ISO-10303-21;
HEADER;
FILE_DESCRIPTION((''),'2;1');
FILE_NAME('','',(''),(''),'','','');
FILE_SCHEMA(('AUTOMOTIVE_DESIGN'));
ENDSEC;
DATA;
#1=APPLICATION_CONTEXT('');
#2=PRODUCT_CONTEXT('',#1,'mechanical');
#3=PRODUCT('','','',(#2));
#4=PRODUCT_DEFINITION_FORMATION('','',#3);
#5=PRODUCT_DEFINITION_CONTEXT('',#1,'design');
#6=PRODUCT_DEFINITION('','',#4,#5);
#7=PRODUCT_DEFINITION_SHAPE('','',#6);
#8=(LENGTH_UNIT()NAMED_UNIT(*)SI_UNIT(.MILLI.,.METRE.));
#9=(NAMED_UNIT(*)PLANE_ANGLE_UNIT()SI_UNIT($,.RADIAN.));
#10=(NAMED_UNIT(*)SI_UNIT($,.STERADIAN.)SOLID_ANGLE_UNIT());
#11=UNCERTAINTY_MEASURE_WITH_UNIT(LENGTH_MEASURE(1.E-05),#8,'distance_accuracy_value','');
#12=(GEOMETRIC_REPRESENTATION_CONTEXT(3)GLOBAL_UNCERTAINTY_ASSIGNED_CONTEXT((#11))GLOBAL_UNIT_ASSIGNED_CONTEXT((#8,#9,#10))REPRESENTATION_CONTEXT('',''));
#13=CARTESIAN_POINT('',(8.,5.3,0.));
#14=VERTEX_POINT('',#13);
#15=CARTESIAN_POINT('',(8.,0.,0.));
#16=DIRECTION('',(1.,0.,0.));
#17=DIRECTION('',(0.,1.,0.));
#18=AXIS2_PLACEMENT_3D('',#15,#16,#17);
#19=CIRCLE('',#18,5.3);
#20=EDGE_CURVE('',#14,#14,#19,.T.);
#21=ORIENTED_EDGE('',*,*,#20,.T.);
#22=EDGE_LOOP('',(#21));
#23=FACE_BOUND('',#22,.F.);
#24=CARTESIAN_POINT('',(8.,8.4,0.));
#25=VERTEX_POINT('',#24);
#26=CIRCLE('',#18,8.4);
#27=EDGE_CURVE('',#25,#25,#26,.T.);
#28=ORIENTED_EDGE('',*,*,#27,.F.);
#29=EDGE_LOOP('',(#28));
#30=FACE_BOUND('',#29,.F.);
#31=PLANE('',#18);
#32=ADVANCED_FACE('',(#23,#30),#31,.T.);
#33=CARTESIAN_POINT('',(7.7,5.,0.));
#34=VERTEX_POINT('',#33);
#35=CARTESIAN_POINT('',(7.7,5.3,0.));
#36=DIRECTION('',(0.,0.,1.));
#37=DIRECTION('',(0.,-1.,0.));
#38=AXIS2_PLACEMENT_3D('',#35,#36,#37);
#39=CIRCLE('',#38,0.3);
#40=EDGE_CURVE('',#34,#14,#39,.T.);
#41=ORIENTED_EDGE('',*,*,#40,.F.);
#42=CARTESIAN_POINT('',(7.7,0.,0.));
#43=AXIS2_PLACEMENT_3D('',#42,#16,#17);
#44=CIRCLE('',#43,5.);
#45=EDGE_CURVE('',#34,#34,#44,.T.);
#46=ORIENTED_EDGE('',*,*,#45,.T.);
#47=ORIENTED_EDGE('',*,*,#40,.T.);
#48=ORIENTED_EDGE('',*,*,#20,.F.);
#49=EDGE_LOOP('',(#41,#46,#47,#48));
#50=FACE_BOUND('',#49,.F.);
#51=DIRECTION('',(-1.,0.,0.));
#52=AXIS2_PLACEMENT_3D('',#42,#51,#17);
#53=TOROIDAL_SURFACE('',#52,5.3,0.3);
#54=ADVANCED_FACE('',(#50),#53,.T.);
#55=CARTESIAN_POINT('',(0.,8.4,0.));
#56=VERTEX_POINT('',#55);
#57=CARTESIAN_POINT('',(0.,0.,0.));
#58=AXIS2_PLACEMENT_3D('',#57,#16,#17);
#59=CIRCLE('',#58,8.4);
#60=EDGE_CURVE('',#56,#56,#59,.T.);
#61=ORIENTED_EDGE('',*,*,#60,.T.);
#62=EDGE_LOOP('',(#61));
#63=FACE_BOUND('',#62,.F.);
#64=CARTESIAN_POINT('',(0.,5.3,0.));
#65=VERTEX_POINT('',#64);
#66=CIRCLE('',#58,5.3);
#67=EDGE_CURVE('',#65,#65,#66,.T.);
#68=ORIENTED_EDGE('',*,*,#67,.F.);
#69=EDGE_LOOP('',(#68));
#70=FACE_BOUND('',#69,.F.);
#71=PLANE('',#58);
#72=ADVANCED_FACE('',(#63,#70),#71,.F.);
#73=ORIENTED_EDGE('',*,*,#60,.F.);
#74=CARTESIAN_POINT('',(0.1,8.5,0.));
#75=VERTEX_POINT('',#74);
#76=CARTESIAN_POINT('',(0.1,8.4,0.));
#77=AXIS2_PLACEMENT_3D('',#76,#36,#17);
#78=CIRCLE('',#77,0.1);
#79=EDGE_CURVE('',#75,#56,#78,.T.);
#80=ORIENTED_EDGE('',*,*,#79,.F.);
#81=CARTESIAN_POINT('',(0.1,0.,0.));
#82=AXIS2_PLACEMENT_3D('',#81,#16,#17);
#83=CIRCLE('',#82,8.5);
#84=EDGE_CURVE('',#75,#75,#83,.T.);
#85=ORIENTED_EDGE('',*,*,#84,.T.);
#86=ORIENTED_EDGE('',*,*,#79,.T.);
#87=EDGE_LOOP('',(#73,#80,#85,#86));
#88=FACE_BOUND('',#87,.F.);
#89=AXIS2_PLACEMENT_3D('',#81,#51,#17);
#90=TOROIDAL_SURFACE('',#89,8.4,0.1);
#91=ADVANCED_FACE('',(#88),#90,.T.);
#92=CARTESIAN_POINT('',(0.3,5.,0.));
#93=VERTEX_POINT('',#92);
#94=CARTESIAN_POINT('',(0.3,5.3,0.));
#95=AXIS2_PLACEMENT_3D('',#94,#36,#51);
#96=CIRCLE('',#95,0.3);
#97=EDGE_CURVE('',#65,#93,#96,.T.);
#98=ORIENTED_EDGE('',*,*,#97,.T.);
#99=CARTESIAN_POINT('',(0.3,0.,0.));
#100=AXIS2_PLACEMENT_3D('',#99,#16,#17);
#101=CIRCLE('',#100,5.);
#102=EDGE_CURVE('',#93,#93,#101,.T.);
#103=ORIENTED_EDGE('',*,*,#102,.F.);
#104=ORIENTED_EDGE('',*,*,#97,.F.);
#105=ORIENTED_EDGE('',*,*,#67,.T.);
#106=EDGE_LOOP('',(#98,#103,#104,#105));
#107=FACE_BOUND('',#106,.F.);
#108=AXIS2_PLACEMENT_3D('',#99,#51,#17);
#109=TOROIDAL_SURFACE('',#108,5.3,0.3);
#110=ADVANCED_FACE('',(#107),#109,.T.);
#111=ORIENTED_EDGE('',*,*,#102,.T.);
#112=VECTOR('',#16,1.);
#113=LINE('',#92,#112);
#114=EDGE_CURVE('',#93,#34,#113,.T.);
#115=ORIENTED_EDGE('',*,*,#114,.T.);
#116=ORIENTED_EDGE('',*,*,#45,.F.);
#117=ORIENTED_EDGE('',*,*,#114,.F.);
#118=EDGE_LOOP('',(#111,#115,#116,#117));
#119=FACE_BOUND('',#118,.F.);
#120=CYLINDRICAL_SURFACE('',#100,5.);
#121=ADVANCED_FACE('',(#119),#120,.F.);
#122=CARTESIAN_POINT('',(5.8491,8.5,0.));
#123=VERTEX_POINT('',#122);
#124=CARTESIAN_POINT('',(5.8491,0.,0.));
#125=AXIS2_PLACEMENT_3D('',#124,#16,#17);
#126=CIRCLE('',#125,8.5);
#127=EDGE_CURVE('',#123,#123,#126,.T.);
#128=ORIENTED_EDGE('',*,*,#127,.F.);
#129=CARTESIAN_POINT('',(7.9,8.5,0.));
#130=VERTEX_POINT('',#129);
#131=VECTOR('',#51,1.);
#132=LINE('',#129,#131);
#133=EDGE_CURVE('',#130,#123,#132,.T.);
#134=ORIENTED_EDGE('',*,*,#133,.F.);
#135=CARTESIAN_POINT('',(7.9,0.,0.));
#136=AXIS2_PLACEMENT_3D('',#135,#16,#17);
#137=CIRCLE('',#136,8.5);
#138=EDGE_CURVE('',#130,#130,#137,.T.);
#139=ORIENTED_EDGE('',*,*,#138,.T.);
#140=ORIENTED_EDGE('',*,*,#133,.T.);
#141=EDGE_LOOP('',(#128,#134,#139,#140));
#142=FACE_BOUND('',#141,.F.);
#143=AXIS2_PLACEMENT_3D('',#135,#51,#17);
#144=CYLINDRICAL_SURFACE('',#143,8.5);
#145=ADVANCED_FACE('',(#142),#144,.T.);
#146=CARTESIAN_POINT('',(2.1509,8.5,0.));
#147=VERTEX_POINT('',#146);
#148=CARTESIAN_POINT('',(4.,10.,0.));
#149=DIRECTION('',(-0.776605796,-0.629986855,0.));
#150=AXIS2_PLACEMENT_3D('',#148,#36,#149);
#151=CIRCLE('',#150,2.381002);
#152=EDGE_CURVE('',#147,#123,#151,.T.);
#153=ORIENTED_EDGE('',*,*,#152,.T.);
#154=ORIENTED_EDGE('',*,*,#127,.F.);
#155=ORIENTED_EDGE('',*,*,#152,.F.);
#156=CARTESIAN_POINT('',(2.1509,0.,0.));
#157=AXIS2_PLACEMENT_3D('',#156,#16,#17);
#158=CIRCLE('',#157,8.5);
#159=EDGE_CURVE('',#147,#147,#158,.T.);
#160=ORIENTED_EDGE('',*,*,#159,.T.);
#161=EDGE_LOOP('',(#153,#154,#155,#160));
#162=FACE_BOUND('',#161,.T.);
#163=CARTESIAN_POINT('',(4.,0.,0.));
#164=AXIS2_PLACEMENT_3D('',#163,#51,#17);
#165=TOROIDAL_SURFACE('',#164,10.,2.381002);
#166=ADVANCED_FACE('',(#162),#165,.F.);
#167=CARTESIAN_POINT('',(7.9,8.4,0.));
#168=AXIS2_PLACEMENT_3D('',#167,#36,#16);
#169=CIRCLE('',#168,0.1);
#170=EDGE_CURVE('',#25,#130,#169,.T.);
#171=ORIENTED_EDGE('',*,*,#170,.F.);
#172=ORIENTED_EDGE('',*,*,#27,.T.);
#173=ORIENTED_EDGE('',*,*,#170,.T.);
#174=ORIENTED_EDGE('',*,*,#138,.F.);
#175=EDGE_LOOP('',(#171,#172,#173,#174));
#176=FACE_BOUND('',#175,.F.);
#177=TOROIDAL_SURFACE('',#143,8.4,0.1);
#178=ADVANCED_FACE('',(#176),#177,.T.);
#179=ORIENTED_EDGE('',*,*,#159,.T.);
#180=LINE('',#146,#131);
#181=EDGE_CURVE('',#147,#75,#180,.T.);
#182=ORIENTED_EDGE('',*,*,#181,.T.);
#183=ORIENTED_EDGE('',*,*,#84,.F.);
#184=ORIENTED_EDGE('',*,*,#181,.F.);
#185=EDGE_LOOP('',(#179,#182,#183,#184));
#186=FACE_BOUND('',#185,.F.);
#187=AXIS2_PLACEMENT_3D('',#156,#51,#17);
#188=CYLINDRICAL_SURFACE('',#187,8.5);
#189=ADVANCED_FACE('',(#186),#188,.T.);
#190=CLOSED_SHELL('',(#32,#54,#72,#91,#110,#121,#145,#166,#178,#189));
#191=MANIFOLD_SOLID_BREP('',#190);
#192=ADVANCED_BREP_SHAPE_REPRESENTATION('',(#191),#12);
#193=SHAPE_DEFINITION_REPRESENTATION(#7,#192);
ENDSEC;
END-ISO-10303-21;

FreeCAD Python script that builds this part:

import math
import FreeCAD as App
import Part
import Sketcher
from FreeCAD import Vector

doc = App.newDocument("Part")
body = doc.addObject("PartDesign::Body", "Body")

# Sketch on XY plane
sketch1 = body.newObject("Sketcher::SketchObject", "Sketch")
sketch1.AttachmentSupport = (doc.getObject("XY_Plane"), [""])
sketch1.MapMode = "FlatFace"
sketch1.addGeometry([
    Part.LineSegment(Vector(0, 8.4, 0), Vector(0, 5.3, 0)),  # 0
    Part.ArcOfCircle(Part.Circle(Vector(0.3, 5.3, 0), Vector(0, 0, 1), 0.3), math.radians(180), math.radians(270)),  # 1
    Part.LineSegment(Vector(0.3, 5, 0), Vector(7.7, 5, 0)),  # 2
    Part.ArcOfCircle(Part.Circle(Vector(7.7, 5.3, 0), Vector(0, 0, 1), 0.3), math.radians(-90), math.radians(0)),  # 3
    Part.LineSegment(Vector(8, 5.3, 0), Vector(8, 8.4, 0)),  # 4
    Part.ArcOfCircle(Part.Circle(Vector(7.9, 8.4, 0), Vector(0, 0, 1), 0.1), math.radians(0), math.radians(90)),  # 5
    Part.LineSegment(Vector(7.9, 8.5, 0), Vector(5.8491, 8.5, 0)),  # 6
    Part.ArcOfCircle(Part.Circle(Vector(4, 10, 0), Vector(0, 0, 1), 2.381002), math.radians(-140.950847), math.radians(-39.049153)),  # 7
    Part.LineSegment(Vector(2.1509, 8.5, 0), Vector(0.1, 8.5, 0)),  # 8
    Part.ArcOfCircle(Part.Circle(Vector(0.1, 8.4, 0), Vector(0, 0, 1), 0.1), math.radians(90), math.radians(180)),  # 9
], False)
sketch1.addConstraint([
    Sketcher.Constraint("Tangent", 0, 2, 1, 1),
    Sketcher.Constraint("Tangent", 1, 2, 2, 1),
    Sketcher.Constraint("Tangent", 2, 2, 3, 1),
    Sketcher.Constraint("Tangent", 3, 2, 4, 1),
    Sketcher.Constraint("Tangent", 4, 2, 5, 1),
    Sketcher.Constraint("Tangent", 5, 2, 6, 1),
    Sketcher.Constraint("Coincident", 6, 2, 7, 2),
    Sketcher.Constraint("Coincident", 7, 1, 8, 1),
    Sketcher.Constraint("Tangent", 8, 2, 9, 1),
    Sketcher.Constraint("Tangent", 9, 2, 0, 1),
    Sketcher.Constraint("Vertical", 0),
    Sketcher.Constraint("Horizontal", 2),
    Sketcher.Constraint("Vertical", 4),
    Sketcher.Constraint("Horizontal", 6),
    Sketcher.Constraint("Horizontal", 8),
    Sketcher.Constraint("Equal", 1, 3),
    Sketcher.Constraint("Equal", 5, 9),
    Sketcher.Constraint("PointOnObject", 0, 2, -2),
    Sketcher.Constraint("Horizontal", 5, 3, 9, 3),
    Sketcher.Constraint("Equal", 6, 8),
    Sketcher.Constraint("Radius", 1, 0.3),
    Sketcher.Constraint("Radius", 5, 0.1),
    Sketcher.Constraint("DistanceX", 2, 1, 2, 2, 7.4),
    Sketcher.Constraint("DistanceY", 0, 2, 0, 1, 3.1),
    Sketcher.Constraint("DistanceY", -1, 1, 7, 3, 10.0),
    Sketcher.Constraint("DistanceY", -1, 1, 1, 2, 5.0),
    Sketcher.Constraint("Radius", 7, 2.381),
])
revolution = body.newObject("PartDesign::Revolution", "Revolution")
revolution.Profile = sketch1
revolution.ReferenceAxis = (sketch1, ["H_Axis"])
revolution.Angle = 360

doc.recompute()
